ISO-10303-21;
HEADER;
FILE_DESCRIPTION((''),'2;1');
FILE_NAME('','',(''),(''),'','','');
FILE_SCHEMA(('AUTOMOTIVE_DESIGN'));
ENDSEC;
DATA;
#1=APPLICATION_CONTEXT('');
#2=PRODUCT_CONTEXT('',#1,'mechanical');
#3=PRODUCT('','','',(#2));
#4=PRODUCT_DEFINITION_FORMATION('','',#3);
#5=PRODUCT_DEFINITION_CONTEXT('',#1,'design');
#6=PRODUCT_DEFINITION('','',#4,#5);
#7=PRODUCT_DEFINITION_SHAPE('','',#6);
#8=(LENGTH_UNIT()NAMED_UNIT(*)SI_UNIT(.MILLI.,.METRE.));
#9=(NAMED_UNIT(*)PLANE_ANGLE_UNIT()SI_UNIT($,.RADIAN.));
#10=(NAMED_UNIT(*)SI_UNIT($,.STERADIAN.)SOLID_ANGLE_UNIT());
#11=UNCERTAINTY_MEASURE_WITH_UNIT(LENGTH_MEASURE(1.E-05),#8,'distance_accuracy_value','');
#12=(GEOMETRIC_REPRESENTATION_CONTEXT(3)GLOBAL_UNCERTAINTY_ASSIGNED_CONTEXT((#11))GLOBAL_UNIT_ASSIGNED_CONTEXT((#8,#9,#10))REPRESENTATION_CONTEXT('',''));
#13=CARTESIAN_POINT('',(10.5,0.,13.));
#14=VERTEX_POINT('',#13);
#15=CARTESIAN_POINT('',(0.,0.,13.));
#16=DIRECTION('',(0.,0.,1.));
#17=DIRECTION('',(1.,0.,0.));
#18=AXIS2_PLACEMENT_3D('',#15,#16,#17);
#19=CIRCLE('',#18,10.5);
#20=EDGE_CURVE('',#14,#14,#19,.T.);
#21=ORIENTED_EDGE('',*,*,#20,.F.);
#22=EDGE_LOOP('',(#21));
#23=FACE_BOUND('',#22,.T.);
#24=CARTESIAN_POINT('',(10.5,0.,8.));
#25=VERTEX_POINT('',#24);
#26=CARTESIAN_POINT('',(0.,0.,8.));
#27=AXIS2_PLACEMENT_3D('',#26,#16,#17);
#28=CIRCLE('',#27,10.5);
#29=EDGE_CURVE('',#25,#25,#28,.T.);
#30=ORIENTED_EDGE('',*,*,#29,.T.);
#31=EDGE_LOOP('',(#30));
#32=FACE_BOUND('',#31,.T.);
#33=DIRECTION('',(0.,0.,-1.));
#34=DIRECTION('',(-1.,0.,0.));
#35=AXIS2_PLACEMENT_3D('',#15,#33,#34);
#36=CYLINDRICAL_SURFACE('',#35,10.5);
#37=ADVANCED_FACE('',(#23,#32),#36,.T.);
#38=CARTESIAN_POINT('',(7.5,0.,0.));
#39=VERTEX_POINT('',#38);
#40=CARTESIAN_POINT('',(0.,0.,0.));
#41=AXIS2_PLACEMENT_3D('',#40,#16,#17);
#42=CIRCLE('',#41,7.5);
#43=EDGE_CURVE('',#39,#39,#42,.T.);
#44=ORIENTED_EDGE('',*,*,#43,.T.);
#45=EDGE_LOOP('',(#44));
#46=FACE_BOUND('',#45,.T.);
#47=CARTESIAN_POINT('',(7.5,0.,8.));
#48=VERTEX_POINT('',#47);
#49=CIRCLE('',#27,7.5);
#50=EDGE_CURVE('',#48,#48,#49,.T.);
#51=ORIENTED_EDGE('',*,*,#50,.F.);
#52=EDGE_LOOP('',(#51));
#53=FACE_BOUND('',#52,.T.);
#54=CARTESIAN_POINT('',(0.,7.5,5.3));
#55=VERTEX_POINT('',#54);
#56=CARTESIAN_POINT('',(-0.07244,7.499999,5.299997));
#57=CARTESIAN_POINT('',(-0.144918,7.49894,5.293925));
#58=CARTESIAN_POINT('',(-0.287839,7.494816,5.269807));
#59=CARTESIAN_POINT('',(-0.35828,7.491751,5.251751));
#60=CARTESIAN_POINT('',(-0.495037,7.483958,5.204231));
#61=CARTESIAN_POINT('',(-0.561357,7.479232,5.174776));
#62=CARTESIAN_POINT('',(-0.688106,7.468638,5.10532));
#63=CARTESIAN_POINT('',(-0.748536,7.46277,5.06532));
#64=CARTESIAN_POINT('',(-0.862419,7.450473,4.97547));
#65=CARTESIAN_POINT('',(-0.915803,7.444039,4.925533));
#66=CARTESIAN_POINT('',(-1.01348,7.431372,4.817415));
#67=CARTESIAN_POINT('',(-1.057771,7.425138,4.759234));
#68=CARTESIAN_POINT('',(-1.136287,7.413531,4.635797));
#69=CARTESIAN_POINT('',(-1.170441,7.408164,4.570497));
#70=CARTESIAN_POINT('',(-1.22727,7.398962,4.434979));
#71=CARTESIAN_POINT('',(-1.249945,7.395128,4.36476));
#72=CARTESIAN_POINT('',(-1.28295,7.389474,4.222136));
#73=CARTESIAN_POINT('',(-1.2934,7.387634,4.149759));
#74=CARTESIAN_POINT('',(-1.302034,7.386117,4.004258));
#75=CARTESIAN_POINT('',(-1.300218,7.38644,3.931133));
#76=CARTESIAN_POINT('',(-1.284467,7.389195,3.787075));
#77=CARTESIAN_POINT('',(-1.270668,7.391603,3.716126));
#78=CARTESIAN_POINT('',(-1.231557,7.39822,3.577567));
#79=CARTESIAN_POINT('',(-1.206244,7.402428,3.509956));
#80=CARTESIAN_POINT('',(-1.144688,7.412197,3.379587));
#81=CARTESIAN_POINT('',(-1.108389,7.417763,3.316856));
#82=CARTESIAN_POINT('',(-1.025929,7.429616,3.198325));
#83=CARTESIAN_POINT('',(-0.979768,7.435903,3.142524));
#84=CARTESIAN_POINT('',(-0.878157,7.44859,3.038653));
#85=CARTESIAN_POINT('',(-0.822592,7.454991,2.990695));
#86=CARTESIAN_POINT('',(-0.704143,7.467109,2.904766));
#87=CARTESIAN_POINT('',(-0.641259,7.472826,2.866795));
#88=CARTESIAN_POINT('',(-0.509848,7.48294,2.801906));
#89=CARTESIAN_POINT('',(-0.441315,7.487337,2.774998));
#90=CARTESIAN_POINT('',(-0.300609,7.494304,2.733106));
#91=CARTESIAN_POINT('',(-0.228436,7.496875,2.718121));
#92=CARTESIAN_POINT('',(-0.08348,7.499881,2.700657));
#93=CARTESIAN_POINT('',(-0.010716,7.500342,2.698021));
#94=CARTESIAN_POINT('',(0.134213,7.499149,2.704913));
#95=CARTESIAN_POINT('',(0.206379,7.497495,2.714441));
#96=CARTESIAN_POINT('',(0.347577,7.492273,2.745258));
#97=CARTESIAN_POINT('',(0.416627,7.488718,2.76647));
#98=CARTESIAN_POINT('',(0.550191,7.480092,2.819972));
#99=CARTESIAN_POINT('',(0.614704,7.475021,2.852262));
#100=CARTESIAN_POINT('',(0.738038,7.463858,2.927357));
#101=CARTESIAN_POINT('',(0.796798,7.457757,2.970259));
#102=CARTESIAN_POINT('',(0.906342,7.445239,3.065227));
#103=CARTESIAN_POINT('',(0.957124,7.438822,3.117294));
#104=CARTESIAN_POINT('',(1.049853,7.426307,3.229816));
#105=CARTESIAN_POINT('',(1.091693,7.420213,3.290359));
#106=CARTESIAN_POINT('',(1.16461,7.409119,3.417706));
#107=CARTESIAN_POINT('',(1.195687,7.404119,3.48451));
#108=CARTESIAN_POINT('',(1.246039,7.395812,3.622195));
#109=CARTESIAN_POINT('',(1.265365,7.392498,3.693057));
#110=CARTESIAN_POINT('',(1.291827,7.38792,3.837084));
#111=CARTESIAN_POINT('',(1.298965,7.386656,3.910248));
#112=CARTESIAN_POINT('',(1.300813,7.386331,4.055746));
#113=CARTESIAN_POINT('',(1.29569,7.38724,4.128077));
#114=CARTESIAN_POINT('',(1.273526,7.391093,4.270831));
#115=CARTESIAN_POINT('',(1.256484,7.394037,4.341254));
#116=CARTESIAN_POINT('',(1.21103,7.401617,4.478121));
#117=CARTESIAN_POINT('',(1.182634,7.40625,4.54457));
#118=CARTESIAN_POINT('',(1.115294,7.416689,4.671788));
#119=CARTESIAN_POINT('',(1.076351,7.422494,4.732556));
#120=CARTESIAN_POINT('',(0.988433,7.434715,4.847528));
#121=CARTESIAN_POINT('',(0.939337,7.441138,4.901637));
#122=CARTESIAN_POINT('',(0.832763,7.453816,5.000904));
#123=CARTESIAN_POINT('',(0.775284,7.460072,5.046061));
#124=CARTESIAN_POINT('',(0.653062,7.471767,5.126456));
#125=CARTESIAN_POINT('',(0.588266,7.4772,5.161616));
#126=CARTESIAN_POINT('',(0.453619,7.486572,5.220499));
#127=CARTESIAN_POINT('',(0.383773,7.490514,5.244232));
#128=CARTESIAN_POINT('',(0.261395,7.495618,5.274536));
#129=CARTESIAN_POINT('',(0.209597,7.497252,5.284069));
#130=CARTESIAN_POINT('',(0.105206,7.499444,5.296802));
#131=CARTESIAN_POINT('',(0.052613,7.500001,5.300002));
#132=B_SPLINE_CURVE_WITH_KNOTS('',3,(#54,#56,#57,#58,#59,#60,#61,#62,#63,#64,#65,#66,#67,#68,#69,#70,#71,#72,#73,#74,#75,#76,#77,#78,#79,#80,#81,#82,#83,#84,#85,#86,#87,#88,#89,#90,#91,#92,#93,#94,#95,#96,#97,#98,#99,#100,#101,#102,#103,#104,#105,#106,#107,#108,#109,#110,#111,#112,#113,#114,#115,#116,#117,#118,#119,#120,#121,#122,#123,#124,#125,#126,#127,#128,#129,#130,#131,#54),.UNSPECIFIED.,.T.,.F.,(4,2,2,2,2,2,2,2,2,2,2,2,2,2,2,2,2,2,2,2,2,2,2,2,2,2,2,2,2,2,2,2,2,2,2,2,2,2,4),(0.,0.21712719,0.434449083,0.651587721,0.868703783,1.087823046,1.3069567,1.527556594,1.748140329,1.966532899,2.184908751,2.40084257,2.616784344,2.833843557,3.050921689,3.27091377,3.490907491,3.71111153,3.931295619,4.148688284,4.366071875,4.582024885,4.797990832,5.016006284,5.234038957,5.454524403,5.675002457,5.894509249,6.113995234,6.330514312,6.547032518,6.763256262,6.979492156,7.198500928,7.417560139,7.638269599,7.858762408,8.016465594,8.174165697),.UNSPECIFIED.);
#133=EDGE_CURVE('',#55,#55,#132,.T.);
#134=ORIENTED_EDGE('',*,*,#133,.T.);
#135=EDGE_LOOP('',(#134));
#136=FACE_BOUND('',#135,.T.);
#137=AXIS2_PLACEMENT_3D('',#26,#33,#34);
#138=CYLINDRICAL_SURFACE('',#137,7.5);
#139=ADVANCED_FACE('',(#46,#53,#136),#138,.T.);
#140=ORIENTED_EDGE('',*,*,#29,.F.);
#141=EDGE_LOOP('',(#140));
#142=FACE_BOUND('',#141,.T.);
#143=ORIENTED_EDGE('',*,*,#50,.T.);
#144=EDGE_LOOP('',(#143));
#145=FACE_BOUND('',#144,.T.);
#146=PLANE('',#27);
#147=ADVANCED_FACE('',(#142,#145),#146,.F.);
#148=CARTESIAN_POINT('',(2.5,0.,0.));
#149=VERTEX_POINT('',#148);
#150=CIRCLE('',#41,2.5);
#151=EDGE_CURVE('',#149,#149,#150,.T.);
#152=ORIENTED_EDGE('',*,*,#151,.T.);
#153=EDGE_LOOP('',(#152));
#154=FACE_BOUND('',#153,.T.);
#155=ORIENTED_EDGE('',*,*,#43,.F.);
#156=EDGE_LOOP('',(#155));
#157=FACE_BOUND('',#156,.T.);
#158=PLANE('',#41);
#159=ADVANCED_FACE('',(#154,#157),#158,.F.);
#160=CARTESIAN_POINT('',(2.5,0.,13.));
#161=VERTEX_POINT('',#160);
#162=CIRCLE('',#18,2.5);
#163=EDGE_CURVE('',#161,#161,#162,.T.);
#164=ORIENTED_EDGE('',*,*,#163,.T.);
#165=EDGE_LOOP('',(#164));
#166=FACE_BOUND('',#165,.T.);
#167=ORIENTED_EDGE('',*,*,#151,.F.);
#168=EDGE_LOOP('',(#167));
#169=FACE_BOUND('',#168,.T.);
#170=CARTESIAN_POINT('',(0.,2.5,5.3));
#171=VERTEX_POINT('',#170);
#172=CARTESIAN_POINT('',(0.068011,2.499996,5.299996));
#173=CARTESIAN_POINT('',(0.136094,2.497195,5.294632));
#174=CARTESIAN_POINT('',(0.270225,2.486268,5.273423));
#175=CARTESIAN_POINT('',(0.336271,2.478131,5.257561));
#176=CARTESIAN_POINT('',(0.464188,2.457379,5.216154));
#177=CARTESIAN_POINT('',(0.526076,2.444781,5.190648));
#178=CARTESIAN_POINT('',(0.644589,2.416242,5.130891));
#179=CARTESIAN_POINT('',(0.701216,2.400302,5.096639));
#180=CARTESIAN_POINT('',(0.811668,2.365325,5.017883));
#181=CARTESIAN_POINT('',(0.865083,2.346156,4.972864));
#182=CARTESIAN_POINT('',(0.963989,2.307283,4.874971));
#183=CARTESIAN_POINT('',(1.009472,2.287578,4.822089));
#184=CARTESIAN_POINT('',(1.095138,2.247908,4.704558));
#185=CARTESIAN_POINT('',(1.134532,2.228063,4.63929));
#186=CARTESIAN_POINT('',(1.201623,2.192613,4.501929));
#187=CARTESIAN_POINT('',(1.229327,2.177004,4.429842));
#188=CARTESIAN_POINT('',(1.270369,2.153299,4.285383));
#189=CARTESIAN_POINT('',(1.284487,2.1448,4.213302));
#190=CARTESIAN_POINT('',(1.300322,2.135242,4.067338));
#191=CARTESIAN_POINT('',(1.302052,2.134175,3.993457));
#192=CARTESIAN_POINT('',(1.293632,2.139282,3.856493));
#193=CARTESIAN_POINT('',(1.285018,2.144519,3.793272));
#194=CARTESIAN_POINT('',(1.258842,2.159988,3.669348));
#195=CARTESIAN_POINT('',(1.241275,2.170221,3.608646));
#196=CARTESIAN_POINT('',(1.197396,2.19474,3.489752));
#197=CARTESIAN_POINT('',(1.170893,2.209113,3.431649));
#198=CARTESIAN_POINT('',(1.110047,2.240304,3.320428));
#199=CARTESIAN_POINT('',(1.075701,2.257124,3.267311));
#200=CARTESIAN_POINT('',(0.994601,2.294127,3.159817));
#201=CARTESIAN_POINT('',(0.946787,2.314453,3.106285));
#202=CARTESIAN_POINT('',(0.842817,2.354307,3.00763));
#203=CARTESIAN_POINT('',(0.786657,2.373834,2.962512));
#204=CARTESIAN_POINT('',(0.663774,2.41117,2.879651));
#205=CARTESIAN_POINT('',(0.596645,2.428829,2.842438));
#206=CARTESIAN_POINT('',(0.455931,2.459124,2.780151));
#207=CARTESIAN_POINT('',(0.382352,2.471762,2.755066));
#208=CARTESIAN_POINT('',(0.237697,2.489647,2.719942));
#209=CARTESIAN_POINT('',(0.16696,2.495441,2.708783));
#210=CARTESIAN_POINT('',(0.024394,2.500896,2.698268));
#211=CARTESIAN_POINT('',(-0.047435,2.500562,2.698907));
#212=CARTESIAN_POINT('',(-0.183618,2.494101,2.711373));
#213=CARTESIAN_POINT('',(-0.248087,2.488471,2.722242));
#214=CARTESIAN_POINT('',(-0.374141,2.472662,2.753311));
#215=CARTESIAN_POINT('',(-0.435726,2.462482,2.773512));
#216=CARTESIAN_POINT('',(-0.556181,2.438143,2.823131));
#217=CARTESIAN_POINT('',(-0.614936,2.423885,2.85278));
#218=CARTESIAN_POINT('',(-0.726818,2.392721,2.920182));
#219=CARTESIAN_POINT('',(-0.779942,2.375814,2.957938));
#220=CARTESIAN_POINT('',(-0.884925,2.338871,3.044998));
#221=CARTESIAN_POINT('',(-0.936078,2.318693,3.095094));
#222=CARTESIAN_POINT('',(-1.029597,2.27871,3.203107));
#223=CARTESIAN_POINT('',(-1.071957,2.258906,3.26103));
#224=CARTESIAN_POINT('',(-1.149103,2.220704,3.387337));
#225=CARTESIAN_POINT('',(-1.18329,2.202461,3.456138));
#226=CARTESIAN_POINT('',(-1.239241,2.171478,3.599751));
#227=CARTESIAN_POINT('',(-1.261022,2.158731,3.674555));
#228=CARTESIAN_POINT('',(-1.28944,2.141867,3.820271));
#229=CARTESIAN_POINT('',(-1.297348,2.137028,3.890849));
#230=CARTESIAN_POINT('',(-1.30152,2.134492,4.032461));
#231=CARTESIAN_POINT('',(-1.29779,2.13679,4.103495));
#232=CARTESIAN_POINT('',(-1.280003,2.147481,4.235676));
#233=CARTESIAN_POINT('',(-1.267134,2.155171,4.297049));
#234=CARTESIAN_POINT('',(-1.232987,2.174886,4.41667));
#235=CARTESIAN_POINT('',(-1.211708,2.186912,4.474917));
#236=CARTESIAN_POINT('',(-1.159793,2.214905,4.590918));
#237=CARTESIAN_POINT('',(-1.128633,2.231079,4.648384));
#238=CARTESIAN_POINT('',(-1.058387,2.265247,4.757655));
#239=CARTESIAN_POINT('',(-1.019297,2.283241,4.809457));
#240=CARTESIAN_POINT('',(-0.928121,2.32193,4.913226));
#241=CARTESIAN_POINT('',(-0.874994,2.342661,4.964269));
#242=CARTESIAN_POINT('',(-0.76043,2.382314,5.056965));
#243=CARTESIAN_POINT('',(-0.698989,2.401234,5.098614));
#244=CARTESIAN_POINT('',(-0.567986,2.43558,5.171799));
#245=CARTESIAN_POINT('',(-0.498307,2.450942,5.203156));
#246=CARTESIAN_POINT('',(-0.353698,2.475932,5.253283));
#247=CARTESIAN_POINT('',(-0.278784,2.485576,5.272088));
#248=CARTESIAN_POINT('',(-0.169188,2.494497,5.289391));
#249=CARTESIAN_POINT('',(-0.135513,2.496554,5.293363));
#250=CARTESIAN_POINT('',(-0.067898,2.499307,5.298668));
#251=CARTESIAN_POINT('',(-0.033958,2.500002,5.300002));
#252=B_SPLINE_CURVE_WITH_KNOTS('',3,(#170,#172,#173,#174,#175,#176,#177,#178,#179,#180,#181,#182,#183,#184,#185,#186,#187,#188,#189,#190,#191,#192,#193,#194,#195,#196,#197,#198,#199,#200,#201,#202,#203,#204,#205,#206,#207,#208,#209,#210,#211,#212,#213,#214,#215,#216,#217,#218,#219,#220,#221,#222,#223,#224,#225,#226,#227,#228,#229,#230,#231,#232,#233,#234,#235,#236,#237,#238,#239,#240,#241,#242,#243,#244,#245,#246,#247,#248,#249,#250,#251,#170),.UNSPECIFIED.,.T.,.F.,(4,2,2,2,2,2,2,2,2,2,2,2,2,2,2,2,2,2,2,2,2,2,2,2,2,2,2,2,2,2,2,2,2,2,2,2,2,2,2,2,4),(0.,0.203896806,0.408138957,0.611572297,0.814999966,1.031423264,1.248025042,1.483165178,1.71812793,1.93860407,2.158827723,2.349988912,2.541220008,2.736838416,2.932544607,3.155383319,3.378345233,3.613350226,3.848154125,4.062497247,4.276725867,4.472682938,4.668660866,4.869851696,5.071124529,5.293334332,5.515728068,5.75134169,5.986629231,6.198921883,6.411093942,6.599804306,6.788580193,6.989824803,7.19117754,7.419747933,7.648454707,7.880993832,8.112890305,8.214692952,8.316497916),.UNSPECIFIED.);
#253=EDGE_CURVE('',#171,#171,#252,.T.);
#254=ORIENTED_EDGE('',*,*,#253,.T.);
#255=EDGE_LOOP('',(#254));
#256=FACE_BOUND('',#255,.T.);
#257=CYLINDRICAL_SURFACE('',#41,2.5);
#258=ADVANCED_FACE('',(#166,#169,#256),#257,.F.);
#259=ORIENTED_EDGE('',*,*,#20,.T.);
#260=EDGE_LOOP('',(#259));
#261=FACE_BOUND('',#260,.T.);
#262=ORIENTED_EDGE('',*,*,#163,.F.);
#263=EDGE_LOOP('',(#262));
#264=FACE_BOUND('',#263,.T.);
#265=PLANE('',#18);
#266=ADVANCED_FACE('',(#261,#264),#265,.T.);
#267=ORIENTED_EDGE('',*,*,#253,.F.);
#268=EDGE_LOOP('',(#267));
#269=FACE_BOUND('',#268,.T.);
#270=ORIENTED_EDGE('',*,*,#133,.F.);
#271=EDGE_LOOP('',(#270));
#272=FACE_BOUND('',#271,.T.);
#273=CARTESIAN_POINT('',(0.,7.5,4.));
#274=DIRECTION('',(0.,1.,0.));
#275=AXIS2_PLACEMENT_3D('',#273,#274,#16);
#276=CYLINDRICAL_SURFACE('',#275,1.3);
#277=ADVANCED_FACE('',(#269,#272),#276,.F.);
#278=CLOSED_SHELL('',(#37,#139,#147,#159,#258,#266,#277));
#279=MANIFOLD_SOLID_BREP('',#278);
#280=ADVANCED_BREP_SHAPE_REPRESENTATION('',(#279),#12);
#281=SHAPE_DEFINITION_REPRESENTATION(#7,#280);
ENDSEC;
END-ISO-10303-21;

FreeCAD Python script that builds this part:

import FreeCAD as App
import Part
import Sketcher

V = App.Vector

doc = App.newDocument("Part")
body = doc.addObject("PartDesign::Body", "Body")

# Sketch on XY plane
sketch1 = doc.addObject("Sketcher::SketchObject", "Sketch")
body.addObject(sketch1)
sketch1.AttachmentSupport = (doc.XY_Plane, [""])
sketch1.MapMode = "FlatFace"
sketch1.addGeometry(Part.Circle(V(0, 0, 0), V(0, 0, 1), 8), False)
sketch1.addConstraint(Sketcher.Constraint("Coincident", 0, 3, -1, 1))
sketch1.addConstraint(Sketcher.Constraint("Diameter", 0, 15.0))
pad1 = doc.addObject("PartDesign::Pad", "Pad")
body.addObject(pad1)
pad1.Profile = sketch1
pad1.Length = 8

# Sketch on XY plane
sketch2 = doc.addObject("Sketcher::SketchObject", "Sketch001")
body.addObject(sketch2)
sketch2.AttachmentSupport = (doc.XY_Plane, [""])
sketch2.MapMode = "FlatFace"
sketch2.AttachmentOffset = App.Placement(V(0, 0, 8), App.Rotation())
sketch2.addGeometry(Part.Circle(V(0, 0, 0), V(0, 0, 1), 10), False)
sketch2.addConstraint(Sketcher.Constraint("Coincident", 0, 3, -1, 1))
sketch2.addConstraint(Sketcher.Constraint("Diameter", 0, 21.0))
pad2 = doc.addObject("PartDesign::Pad", "Pad001")
body.addObject(pad2)
pad2.Profile = sketch2
pad2.Length = 5

# Sketch on XY plane
sketch3 = doc.addObject("Sketcher::SketchObject", "Sketch002")
body.addObject(sketch3)
sketch3.AttachmentSupport = (doc.XY_Plane, [""])
sketch3.MapMode = "FlatFace"
sketch3.AttachmentOffset = App.Placement(V(0, 0, 13), App.Rotation())
sketch3.addGeometry(Part.Circle(V(0, 0, 0), V(0, 0, 1), 2.5), False)
sketch3.addConstraint(Sketcher.Constraint("Coincident", 0, 3, -1, 1))
sketch3.addConstraint(Sketcher.Constraint("Diameter", 0, 5.0))
pocket1 = doc.addObject("PartDesign::Pocket", "Pocket")
body.addObject(pocket1)
pocket1.Profile = sketch3
pocket1.Type = "ThroughAll"

# Sketch on XZ plane
sketch4 = doc.addObject("Sketcher::SketchObject", "Sketch003")
body.addObject(sketch4)
sketch4.AttachmentSupport = (doc.XZ_Plane, [""])
sketch4.MapMode = "FlatFace"
sketch4.AttachmentOffset = App.Placement(V(0, 0, -7.5), App.Rotation())
sketch4.addGeometry(Part.Circle(V(0, 4, 0), V(0, 0, 1), 1.3), False)
sketch4.addConstraint(Sketcher.Constraint("PointOnObject", 0, 3, -2))
sketch4.addConstraint(Sketcher.Constraint("Diameter", 0, 2.6))
sketch4.addConstraint(Sketcher.Constraint("DistanceY", -1, 1, 0, 3, 4.0))
pocket2 = doc.addObject("PartDesign::Pocket", "Pocket001")
body.addObject(pocket2)
pocket2.Profile = sketch4
pocket2.Type = "UpToFirst"
pocket2.Reversed = True

doc.recompute()
